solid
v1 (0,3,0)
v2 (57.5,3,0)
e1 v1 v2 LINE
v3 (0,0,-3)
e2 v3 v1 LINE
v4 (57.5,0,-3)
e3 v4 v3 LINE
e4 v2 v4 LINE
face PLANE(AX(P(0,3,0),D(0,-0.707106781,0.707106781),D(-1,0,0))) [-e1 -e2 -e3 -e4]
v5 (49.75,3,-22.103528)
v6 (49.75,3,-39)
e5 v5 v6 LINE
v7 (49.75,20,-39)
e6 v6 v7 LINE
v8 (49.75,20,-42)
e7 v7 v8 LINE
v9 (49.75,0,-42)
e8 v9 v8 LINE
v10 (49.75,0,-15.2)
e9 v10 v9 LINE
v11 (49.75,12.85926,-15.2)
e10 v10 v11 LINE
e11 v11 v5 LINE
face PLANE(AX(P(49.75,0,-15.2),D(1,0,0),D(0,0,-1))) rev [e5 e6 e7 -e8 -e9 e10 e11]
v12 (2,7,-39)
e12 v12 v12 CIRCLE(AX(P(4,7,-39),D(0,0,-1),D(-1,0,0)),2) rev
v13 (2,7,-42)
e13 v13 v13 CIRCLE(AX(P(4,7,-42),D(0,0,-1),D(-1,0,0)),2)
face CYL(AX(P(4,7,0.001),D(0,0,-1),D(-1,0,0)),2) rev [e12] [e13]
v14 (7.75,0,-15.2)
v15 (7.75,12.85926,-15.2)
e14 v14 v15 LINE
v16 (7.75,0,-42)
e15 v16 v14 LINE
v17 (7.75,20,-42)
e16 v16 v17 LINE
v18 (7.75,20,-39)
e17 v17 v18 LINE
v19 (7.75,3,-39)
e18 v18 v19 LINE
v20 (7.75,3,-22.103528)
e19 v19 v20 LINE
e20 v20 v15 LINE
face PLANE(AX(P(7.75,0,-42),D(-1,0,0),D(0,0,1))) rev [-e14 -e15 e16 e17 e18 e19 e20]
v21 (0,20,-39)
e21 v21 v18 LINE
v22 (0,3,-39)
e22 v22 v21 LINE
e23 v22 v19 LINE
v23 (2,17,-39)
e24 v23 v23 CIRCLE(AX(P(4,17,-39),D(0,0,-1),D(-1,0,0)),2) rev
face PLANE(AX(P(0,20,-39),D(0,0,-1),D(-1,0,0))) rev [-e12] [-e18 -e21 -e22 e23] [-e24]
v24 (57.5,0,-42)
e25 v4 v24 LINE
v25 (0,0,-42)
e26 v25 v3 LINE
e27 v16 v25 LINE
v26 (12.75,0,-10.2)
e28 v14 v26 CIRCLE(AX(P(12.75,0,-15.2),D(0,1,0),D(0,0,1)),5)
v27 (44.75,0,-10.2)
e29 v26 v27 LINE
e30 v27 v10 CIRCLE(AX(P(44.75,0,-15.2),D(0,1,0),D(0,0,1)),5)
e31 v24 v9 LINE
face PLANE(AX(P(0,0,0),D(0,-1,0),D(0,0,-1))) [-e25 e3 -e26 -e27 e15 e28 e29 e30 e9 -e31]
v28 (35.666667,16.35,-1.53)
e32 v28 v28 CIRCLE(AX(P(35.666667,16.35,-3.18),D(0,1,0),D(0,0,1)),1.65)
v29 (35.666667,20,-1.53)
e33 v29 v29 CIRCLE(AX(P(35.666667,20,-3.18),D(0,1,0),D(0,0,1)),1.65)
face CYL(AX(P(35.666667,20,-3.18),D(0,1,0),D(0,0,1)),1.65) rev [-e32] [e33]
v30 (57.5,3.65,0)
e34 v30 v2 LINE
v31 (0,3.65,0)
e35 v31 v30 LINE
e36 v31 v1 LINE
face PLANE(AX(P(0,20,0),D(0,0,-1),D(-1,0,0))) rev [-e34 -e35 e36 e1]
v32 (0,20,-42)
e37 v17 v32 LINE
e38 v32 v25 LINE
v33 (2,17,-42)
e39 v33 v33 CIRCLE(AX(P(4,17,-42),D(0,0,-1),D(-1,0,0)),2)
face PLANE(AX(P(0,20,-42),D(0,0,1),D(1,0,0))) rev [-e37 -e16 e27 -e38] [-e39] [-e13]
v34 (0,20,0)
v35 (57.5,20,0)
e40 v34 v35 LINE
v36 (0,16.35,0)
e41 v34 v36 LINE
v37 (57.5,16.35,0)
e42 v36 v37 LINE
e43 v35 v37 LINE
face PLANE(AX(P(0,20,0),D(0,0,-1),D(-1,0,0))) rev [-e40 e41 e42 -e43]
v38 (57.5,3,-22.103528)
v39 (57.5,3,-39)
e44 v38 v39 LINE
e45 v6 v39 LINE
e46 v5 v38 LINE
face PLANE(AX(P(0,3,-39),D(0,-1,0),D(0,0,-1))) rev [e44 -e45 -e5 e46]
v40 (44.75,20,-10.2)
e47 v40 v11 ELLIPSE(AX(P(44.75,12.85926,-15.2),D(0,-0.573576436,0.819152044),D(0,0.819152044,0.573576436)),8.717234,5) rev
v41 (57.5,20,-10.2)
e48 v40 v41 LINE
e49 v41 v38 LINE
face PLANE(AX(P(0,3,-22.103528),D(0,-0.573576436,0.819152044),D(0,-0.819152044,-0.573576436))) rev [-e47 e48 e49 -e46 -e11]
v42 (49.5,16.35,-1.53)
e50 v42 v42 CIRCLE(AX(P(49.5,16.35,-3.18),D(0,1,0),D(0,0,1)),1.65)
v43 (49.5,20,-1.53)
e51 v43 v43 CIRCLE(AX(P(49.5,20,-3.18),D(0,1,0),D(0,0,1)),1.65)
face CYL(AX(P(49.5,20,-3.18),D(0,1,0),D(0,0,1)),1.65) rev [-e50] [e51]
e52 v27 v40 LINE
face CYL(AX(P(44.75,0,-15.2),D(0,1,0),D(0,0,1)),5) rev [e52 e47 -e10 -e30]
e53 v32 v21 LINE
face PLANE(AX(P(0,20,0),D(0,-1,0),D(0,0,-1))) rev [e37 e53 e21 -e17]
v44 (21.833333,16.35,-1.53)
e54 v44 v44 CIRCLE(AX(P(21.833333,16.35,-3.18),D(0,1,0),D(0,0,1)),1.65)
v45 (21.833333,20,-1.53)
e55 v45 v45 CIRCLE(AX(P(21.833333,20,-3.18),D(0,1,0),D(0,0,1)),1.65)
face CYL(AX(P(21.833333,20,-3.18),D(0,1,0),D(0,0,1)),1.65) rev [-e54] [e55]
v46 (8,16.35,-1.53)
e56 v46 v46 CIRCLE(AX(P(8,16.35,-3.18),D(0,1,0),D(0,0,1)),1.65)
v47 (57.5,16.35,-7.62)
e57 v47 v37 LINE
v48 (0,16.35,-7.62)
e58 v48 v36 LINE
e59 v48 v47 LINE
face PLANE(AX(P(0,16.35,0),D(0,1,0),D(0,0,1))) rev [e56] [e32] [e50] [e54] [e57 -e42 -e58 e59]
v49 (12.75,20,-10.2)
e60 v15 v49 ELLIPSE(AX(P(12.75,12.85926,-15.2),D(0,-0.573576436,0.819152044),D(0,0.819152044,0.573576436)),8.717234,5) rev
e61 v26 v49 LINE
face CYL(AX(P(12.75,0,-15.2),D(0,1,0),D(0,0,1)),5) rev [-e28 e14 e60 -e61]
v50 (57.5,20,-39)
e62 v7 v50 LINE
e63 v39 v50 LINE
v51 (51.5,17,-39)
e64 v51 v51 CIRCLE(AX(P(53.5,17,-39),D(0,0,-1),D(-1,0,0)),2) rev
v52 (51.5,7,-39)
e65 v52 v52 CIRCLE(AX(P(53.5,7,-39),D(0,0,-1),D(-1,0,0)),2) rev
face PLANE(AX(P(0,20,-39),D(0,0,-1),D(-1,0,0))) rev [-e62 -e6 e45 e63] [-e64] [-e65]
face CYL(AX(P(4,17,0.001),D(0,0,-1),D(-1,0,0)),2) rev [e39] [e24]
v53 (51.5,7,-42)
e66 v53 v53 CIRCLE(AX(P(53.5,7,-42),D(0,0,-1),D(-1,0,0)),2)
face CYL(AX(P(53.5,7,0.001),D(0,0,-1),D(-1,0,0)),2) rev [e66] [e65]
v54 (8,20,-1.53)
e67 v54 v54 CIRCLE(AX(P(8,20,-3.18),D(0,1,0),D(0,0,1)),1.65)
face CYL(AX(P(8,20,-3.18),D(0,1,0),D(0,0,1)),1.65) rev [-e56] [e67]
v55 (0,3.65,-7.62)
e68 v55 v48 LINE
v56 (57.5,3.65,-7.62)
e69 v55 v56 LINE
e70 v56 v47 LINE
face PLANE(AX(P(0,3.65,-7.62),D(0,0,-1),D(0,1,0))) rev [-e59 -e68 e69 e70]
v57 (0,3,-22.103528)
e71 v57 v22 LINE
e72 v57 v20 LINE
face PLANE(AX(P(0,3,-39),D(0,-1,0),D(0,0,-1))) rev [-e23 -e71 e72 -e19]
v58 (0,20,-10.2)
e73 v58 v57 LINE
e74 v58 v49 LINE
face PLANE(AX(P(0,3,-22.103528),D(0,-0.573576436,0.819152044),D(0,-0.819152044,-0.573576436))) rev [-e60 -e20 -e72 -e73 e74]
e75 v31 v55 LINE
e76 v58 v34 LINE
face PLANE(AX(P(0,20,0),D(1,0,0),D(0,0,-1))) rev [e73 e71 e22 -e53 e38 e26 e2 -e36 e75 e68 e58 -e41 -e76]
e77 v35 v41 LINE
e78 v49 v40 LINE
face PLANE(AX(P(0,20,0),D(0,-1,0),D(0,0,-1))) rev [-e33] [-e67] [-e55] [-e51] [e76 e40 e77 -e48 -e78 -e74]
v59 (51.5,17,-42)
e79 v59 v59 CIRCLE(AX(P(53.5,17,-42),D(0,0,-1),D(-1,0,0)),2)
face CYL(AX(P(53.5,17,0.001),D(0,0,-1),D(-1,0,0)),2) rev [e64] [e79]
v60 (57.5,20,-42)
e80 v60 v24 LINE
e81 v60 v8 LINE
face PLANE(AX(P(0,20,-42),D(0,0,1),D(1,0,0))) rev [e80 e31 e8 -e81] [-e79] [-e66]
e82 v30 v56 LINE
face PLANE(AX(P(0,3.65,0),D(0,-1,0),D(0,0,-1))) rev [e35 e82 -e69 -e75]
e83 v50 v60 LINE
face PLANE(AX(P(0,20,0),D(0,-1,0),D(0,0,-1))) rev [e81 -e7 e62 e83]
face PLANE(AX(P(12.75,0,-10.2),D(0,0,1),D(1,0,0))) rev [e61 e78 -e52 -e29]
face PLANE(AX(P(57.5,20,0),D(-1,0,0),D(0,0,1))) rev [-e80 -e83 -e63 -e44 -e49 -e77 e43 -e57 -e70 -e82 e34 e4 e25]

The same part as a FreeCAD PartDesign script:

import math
import FreeCAD as App
import Part
import Sketcher

V = App.Vector
Q = App.Units.Quantity


def edges_at(feature, points):
    """Names of the edges that pass closest to the given points."""
    edges = feature.Shape.Edges
    near = lambda p: min(range(len(edges)), key=lambda i: edges[i].distToShape(Part.Vertex(*p))[0])
    return sorted({f"Edge{near(p) + 1}" for p in points})

doc = App.newDocument("Part")
body = doc.addObject("PartDesign::Body", "Body")

sketch1 = body.newObject("Sketcher::SketchObject", "Sketch")
sketch1.AttachmentSupport = (doc.getObject("XZ_Plane"), [""])
sketch1.MapMode = "FlatFace"
sketch1.addGeometry(Part.LineSegment(V(0, -42, 0), V(0, 0, 0)), False)
sketch1.addGeometry(Part.LineSegment(V(0, 0, 0), V(58, 0, 0)), False)
sketch1.addGeometry(Part.LineSegment(V(58, 0, 0), V(58, -42, 0)), False)
sketch1.addGeometry(Part.LineSegment(V(58, -42, 0), V(0, -42, 0)), False)
sketch1.addConstraint(Sketcher.Constraint("Coincident", 0, 2, 1, 1))
sketch1.addConstraint(Sketcher.Constraint("Coincident", 1, 2, 2, 1))
sketch1.addConstraint(Sketcher.Constraint("Coincident", 2, 2, 3, 1))
sketch1.addConstraint(Sketcher.Constraint("Coincident", 3, 2, 0, 1))
sketch1.addConstraint(Sketcher.Constraint("Vertical", 0))
sketch1.addConstraint(Sketcher.Constraint("Horizontal", 1))
sketch1.addConstraint(Sketcher.Constraint("Vertical", 2))
sketch1.addConstraint(Sketcher.Constraint("Horizontal", 3))
sketch1.addConstraint(Sketcher.Constraint("Coincident", 0, 2, -1, 1))
sketch1.addConstraint(Sketcher.Constraint("DistanceY", 0, 1, 0, 2, 42.0))
sketch1.addConstraint(Sketcher.Constraint("DistanceX", 1, 1, 1, 2, 57.5))
pad1 = body.newObject("PartDesign::Pad", "Pad")
pad1.Profile = sketch1
pad1.Length = 20
pad1.Reversed = True

sketch2 = body.newObject("Sketcher::SketchObject", "Sketch001")
sketch2.AttachmentSupport = (doc.getObject("XZ_Plane"), [""])
sketch2.MapMode = "FlatFace"
sketch2.AttachmentOffset = App.Placement(V(0, 0, -20), App.Rotation())
sketch2.addGeometry(Part.LineSegment(V(8, -42, 0), V(8, -15, 0)), False)
sketch2.addGeometry(Part.ArcOfCircle(Part.Circle(V(13, -15, 0), V(0, 0, 1), 5), math.radians(90), math.radians(180)), False)
sketch2.addGeometry(Part.LineSegment(V(13, -10, 0), V(45, -10, 0)), False)
sketch2.addGeometry(Part.ArcOfCircle(Part.Circle(V(45, -15, 0), V(0, 0, 1), 5), math.radians(0), math.radians(90)), False)
sketch2.addGeometry(Part.LineSegment(V(50, -15, 0), V(50, -42, 0)), False)
sketch2.addGeometry(Part.LineSegment(V(50, -42, 0), V(8, -42, 0)), False)
sketch2.addConstraint(Sketcher.Constraint("Tangent", 0, 2, 1, 2))
sketch2.addConstraint(Sketcher.Constraint("Tangent", 1, 1, 2, 1))
sketch2.addConstraint(Sketcher.Constraint("Tangent", 2, 2, 3, 2))
sketch2.addConstraint(Sketcher.Constraint("Tangent", 3, 1, 4, 1))
sketch2.addConstraint(Sketcher.Constraint("Coincident", 4, 2, 5, 1))
sketch2.addConstraint(Sketcher.Constraint("Coincident", 5, 2, 0, 1))
sketch2.addConstraint(Sketcher.Constraint("Vertical", 0))
sketch2.addConstraint(Sketcher.Constraint("Horizontal", 2))
sketch2.addConstraint(Sketcher.Constraint("Vertical", 4))
sketch2.addConstraint(Sketcher.Constraint("Horizontal", 5))
sketch2.addConstraint(Sketcher.Constraint("Equal", 1, 3))
sketch2.addConstraint(Sketcher.Constraint("Radius", 1, 5.0))
sketch2.addConstraint(Sketcher.Constraint("DistanceX", 2, 1, 2, 2, 32.0))
sketch2.addConstraint(Sketcher.Constraint("DistanceY", 0, 1, 0, 2, 26.8))
sketch2.addConstraint(Sketcher.Constraint("DistanceY", 4, 2, -1, 1, 42.0))
sketch2.addConstraint(Sketcher.Constraint("DistanceX", -1, 1, 1, 3, 12.75))
pocket1 = body.newObject("PartDesign::Pocket", "Pocket")
pocket1.Profile = sketch2
pocket1.Type = "ThroughAll"
pocket1.Reversed = True

sketch3 = body.newObject("Sketcher::SketchObject", "Sketch002")
sketch3.AttachmentSupport = (doc.getObject("YZ_Plane"), [""])
sketch3.MapMode = "FlatFace"
sketch3.AttachmentOffset = App.Placement(V(0, 0, 57.5), App.Rotation())
sketch3.addGeometry(Part.LineSegment(V(3, -39, 0), V(20, -39, 0)), False)
sketch3.addGeometry(Part.LineSegment(V(20, -39, 0), V(20, -10, 0)), False)
sketch3.addGeometry(Part.LineSegment(V(20, -10, 0), V(3, -22, 0)), False)
sketch3.addGeometry(Part.LineSegment(V(3, -22, 0), V(3, -39, 0)), False)
sketch3.addConstraint(Sketcher.Constraint("Coincident", 0, 2, 1, 1))
sketch3.addConstraint(Sketcher.Constraint("Coincident", 1, 2, 2, 1))
sketch3.addConstraint(Sketcher.Constraint("Coincident", 2, 2, 3, 1))
sketch3.addConstraint(Sketcher.Constraint("Coincident", 3, 2, 0, 1))
sketch3.addConstraint(Sketcher.Constraint("Horizontal", 0))
sketch3.addConstraint(Sketcher.Constraint("Vertical", 1))
sketch3.addConstraint(Sketcher.Constraint("Vertical", 3))
sketch3.addConstraint(Sketcher.Constraint("DistanceX", 0, 1, 0, 2, 17.0))
sketch3.addConstraint(Sketcher.Constraint("Angle", 2, Q("-145 deg")))
sketch3.addConstraint(Sketcher.Constraint("DistanceY", 1, 1, 1, 2, 28.8))
sketch3.addConstraint(Sketcher.Constraint("DistanceX", -1, 1, 0, 2, 20.0))
sketch3.addConstraint(Sketcher.Constraint("DistanceY", 0, 2, -1, 1, 39.0))
pocket2 = body.newObject("PartDesign::Pocket", "Pocket001")
pocket2.Profile = sketch3
pocket2.Type = "ThroughAll"

sketch4 = body.newObject("Sketcher::SketchObject", "Sketch003")
sketch4.AttachmentSupport = (doc.getObject("XY_Plane"), [""])
sketch4.MapMode = "FlatFace"
sketch4.AttachmentOffset = App.Placement(V(0, 0, -42), App.Rotation())
sketch4.addGeometry(Part.Circle(V(53.5, 17, 0), V(0, 0, 1), 2), False)
sketch4.addConstraint(Sketcher.Constraint("Diameter", 0, 4.0))
sketch4.addConstraint(Sketcher.Constraint("DistanceY", -1, 1, 0, 3, 17.0))
sketch4.addConstraint(Sketcher.Constraint("DistanceX", -1, 1, 0, 3, 53.5))
pocket3 = body.newObject("PartDesign::Pocket", "Pocket002")
pocket3.Profile = sketch4
pocket3.Type = "UpToFirst"
pocket3.Reversed = True

sketch5 = body.newObject("Sketcher::SketchObject", "Sketch004")
sketch5.AttachmentSupport = (doc.getObject("XY_Plane"), [""])
sketch5.MapMode = "FlatFace"
sketch5.AttachmentOffset = App.Placement(V(0, 0, -42), App.Rotation())
sketch5.addGeometry(Part.Circle(V(4, 17, 0), V(0, 0, 1), 2), False)
sketch5.addConstraint(Sketcher.Constraint("Diameter", 0, 4.0))
sketch5.addConstraint(Sketcher.Constraint("DistanceX", -1, 1, 0, 3, 4.0))
sketch5.addConstraint(Sketcher.Constraint("DistanceY", -1, 1, 0, 3, 17.0))
pocket4 = body.newObject("PartDesign::Pocket", "Pocket003")
pocket4.Profile = sketch5
pocket4.Type = "UpToFirst"
pocket4.Reversed = True

sketch6 = body.newObject("Sketcher::SketchObject", "Sketch005")
sketch6.AttachmentSupport = (doc.getObject("XY_Plane"), [""])
sketch6.MapMode = "FlatFace"
sketch6.AttachmentOffset = App.Placement(V(0, 0, -42), App.Rotation())
sketch6.addGeometry(Part.Circle(V(4, 7, 0), V(0, 0, 1), 2), False)
sketch6.addConstraint(Sketcher.Constraint("Diameter", 0, 4.0))
sketch6.addConstraint(Sketcher.Constraint("DistanceX", -1, 1, 0, 3, 4.0))
sketch6.addConstraint(Sketcher.Constraint("DistanceY", -1, 1, 0, 3, 7.0))
pocket5 = body.newObject("PartDesign::Pocket", "Pocket004")
pocket5.Profile = sketch6
pocket5.Type = "UpToFirst"
pocket5.Reversed = True

sketch7 = body.newObject("Sketcher::SketchObject", "Sketch006")
sketch7.AttachmentSupport = (doc.getObject("XY_Plane"), [""])
sketch7.MapMode = "FlatFace"
sketch7.AttachmentOffset = App.Placement(V(0, 0, -42), App.Rotation())
sketch7.addGeometry(Part.Circle(V(53.5, 7, 0), V(0, 0, 1), 2), False)
sketch7.addConstraint(Sketcher.Constraint("Diameter", 0, 4.0))
sketch7.addConstraint(Sketcher.Constraint("DistanceY", -1, 1, 0, 3, 7.0))
sketch7.addConstraint(Sketcher.Constraint("DistanceX", -1, 1, 0, 3, 53.5))
pocket6 = body.newObject("PartDesign::Pocket", "Pocket005")
pocket6.Profile = sketch7
pocket6.Type = "UpToFirst"
pocket6.Reversed = True

sketch8 = body.newObject("Sketcher::SketchObject", "Sketch007")
sketch8.AttachmentSupport = (doc.getObject("YZ_Plane"), [""])
sketch8.MapMode = "FlatFace"
sketch8.AttachmentOffset = App.Placement(V(0, 0, 57.5), App.Rotation())
sketch8.addGeometry(Part.LineSegment(V(16, 0, 0), V(4, 0, 0)), False)
sketch8.addGeometry(Part.LineSegment(V(4, 0, 0), V(4, -8, 0)), False)
sketch8.addGeometry(Part.LineSegment(V(4, -8, 0), V(16, -8, 0)), False)
sketch8.addGeometry(Part.LineSegment(V(16, -8, 0), V(16, 0, 0)), False)
sketch8.addConstraint(Sketcher.Constraint("Coincident", 0, 2, 1, 1))
sketch8.addConstraint(Sketcher.Constraint("Coincident", 1, 2, 2, 1))
sketch8.addConstraint(Sketcher.Constraint("Coincident", 2, 2, 3, 1))
sketch8.addConstraint(Sketcher.Constraint("Coincident", 3, 2, 0, 1))
sketch8.addConstraint(Sketcher.Constraint("Horizontal", 0))
sketch8.addConstraint(Sketcher.Constraint("Vertical", 1))
sketch8.addConstraint(Sketcher.Constraint("Horizontal", 2))
sketch8.addConstraint(Sketcher.Constraint("Vertical", 3))
sketch8.addConstraint(Sketcher.Constraint("PointOnObject", 0, 2, -1))
sketch8.addConstraint(Sketcher.Constraint("DistanceX", 0, 2, 0, 1, 12.7))
sketch8.addConstraint(Sketcher.Constraint("DistanceY", 1, 2, 1, 1, 7.62))
sketch8.addConstraint(Sketcher.Constraint("DistanceX", -1, 1, 0, 2, 3.65))
pocket7 = body.newObject("PartDesign::Pocket", "Pocket006")
pocket7.Profile = sketch8
pocket7.Type = "ThroughAll"

sketch9 = body.newObject("Sketcher::SketchObject", "Sketch008")
sketch9.AttachmentSupport = (doc.getObject("XZ_Plane"), [""])
sketch9.MapMode = "FlatFace"
sketch9.AttachmentOffset = App.Placement(V(0, 0, -20), App.Rotation())
sketch9.addGeometry(Part.Circle(V(8, -3.2, 0), V(0, 0, 1), 1.6), False)
sketch9.addGeometry(Part.Circle(V(21.8, -3.2, 0), V(0, 0, 1), 1.6), False)
sketch9.addGeometry(Part.Circle(V(35.7, -3.2, 0), V(0, 0, 1), 1.6), False)
sketch9.addGeometry(Part.Circle(V(49.5, -3.2, 0), V(0, 0, 1), 1.6), False)
sketch9.addConstraint(Sketcher.Constraint("Equal", 0, 1))
sketch9.addConstraint(Sketcher.Constraint("Equal", 1, 2))
sketch9.addConstraint(Sketcher.Constraint("Equal", 2, 3))
sketch9.addConstraint(Sketcher.Constraint("Horizontal", 0, 3, 1, 3))
sketch9.addConstraint(Sketcher.Constraint("Horizontal", 1, 3, 2, 3))
sketch9.addConstraint(Sketcher.Constraint("Horizontal", 2, 3, 3, 3))
sketch9.addConstraint(Sketcher.Constraint("Diameter", 0, 3.3))
sketch9.addConstraint(Sketcher.Constraint("DistanceX", -1, 1, 0, 3, 8.0))
sketch9.addConstraint(Sketcher.Constraint("DistanceX", -1, 1, 3, 3, 49.5))
sketch9.addConstraint(Sketcher.Constraint("DistanceY", 0, 3, -1, 1, 3.18))
sketch9.addConstraint(Sketcher.Constraint("DistanceX", -1, 1, 1, 3, 21.833333))
sketch9.addConstraint(Sketcher.Constraint("DistanceX", -1, 1, 2, 3, 35.666667))
doc.recompute()
hole = body.newObject("PartDesign::Hole", "Hole")
hole.Profile = sketch9
hole.ThreadType = "None"
hole.Diameter = 3.3
hole.DepthType = "Dimension"
hole.Depth = 3.65
hole.DrillPoint = "Flat"
hole.Reversed = True
doc.recompute()

chamfer = body.newObject("PartDesign::Chamfer", "Chamfer")
chamfer.Base = (hole, edges_at(hole, [(28.75, 0, 0)]))
chamfer.Size = 3

doc.recompute()
